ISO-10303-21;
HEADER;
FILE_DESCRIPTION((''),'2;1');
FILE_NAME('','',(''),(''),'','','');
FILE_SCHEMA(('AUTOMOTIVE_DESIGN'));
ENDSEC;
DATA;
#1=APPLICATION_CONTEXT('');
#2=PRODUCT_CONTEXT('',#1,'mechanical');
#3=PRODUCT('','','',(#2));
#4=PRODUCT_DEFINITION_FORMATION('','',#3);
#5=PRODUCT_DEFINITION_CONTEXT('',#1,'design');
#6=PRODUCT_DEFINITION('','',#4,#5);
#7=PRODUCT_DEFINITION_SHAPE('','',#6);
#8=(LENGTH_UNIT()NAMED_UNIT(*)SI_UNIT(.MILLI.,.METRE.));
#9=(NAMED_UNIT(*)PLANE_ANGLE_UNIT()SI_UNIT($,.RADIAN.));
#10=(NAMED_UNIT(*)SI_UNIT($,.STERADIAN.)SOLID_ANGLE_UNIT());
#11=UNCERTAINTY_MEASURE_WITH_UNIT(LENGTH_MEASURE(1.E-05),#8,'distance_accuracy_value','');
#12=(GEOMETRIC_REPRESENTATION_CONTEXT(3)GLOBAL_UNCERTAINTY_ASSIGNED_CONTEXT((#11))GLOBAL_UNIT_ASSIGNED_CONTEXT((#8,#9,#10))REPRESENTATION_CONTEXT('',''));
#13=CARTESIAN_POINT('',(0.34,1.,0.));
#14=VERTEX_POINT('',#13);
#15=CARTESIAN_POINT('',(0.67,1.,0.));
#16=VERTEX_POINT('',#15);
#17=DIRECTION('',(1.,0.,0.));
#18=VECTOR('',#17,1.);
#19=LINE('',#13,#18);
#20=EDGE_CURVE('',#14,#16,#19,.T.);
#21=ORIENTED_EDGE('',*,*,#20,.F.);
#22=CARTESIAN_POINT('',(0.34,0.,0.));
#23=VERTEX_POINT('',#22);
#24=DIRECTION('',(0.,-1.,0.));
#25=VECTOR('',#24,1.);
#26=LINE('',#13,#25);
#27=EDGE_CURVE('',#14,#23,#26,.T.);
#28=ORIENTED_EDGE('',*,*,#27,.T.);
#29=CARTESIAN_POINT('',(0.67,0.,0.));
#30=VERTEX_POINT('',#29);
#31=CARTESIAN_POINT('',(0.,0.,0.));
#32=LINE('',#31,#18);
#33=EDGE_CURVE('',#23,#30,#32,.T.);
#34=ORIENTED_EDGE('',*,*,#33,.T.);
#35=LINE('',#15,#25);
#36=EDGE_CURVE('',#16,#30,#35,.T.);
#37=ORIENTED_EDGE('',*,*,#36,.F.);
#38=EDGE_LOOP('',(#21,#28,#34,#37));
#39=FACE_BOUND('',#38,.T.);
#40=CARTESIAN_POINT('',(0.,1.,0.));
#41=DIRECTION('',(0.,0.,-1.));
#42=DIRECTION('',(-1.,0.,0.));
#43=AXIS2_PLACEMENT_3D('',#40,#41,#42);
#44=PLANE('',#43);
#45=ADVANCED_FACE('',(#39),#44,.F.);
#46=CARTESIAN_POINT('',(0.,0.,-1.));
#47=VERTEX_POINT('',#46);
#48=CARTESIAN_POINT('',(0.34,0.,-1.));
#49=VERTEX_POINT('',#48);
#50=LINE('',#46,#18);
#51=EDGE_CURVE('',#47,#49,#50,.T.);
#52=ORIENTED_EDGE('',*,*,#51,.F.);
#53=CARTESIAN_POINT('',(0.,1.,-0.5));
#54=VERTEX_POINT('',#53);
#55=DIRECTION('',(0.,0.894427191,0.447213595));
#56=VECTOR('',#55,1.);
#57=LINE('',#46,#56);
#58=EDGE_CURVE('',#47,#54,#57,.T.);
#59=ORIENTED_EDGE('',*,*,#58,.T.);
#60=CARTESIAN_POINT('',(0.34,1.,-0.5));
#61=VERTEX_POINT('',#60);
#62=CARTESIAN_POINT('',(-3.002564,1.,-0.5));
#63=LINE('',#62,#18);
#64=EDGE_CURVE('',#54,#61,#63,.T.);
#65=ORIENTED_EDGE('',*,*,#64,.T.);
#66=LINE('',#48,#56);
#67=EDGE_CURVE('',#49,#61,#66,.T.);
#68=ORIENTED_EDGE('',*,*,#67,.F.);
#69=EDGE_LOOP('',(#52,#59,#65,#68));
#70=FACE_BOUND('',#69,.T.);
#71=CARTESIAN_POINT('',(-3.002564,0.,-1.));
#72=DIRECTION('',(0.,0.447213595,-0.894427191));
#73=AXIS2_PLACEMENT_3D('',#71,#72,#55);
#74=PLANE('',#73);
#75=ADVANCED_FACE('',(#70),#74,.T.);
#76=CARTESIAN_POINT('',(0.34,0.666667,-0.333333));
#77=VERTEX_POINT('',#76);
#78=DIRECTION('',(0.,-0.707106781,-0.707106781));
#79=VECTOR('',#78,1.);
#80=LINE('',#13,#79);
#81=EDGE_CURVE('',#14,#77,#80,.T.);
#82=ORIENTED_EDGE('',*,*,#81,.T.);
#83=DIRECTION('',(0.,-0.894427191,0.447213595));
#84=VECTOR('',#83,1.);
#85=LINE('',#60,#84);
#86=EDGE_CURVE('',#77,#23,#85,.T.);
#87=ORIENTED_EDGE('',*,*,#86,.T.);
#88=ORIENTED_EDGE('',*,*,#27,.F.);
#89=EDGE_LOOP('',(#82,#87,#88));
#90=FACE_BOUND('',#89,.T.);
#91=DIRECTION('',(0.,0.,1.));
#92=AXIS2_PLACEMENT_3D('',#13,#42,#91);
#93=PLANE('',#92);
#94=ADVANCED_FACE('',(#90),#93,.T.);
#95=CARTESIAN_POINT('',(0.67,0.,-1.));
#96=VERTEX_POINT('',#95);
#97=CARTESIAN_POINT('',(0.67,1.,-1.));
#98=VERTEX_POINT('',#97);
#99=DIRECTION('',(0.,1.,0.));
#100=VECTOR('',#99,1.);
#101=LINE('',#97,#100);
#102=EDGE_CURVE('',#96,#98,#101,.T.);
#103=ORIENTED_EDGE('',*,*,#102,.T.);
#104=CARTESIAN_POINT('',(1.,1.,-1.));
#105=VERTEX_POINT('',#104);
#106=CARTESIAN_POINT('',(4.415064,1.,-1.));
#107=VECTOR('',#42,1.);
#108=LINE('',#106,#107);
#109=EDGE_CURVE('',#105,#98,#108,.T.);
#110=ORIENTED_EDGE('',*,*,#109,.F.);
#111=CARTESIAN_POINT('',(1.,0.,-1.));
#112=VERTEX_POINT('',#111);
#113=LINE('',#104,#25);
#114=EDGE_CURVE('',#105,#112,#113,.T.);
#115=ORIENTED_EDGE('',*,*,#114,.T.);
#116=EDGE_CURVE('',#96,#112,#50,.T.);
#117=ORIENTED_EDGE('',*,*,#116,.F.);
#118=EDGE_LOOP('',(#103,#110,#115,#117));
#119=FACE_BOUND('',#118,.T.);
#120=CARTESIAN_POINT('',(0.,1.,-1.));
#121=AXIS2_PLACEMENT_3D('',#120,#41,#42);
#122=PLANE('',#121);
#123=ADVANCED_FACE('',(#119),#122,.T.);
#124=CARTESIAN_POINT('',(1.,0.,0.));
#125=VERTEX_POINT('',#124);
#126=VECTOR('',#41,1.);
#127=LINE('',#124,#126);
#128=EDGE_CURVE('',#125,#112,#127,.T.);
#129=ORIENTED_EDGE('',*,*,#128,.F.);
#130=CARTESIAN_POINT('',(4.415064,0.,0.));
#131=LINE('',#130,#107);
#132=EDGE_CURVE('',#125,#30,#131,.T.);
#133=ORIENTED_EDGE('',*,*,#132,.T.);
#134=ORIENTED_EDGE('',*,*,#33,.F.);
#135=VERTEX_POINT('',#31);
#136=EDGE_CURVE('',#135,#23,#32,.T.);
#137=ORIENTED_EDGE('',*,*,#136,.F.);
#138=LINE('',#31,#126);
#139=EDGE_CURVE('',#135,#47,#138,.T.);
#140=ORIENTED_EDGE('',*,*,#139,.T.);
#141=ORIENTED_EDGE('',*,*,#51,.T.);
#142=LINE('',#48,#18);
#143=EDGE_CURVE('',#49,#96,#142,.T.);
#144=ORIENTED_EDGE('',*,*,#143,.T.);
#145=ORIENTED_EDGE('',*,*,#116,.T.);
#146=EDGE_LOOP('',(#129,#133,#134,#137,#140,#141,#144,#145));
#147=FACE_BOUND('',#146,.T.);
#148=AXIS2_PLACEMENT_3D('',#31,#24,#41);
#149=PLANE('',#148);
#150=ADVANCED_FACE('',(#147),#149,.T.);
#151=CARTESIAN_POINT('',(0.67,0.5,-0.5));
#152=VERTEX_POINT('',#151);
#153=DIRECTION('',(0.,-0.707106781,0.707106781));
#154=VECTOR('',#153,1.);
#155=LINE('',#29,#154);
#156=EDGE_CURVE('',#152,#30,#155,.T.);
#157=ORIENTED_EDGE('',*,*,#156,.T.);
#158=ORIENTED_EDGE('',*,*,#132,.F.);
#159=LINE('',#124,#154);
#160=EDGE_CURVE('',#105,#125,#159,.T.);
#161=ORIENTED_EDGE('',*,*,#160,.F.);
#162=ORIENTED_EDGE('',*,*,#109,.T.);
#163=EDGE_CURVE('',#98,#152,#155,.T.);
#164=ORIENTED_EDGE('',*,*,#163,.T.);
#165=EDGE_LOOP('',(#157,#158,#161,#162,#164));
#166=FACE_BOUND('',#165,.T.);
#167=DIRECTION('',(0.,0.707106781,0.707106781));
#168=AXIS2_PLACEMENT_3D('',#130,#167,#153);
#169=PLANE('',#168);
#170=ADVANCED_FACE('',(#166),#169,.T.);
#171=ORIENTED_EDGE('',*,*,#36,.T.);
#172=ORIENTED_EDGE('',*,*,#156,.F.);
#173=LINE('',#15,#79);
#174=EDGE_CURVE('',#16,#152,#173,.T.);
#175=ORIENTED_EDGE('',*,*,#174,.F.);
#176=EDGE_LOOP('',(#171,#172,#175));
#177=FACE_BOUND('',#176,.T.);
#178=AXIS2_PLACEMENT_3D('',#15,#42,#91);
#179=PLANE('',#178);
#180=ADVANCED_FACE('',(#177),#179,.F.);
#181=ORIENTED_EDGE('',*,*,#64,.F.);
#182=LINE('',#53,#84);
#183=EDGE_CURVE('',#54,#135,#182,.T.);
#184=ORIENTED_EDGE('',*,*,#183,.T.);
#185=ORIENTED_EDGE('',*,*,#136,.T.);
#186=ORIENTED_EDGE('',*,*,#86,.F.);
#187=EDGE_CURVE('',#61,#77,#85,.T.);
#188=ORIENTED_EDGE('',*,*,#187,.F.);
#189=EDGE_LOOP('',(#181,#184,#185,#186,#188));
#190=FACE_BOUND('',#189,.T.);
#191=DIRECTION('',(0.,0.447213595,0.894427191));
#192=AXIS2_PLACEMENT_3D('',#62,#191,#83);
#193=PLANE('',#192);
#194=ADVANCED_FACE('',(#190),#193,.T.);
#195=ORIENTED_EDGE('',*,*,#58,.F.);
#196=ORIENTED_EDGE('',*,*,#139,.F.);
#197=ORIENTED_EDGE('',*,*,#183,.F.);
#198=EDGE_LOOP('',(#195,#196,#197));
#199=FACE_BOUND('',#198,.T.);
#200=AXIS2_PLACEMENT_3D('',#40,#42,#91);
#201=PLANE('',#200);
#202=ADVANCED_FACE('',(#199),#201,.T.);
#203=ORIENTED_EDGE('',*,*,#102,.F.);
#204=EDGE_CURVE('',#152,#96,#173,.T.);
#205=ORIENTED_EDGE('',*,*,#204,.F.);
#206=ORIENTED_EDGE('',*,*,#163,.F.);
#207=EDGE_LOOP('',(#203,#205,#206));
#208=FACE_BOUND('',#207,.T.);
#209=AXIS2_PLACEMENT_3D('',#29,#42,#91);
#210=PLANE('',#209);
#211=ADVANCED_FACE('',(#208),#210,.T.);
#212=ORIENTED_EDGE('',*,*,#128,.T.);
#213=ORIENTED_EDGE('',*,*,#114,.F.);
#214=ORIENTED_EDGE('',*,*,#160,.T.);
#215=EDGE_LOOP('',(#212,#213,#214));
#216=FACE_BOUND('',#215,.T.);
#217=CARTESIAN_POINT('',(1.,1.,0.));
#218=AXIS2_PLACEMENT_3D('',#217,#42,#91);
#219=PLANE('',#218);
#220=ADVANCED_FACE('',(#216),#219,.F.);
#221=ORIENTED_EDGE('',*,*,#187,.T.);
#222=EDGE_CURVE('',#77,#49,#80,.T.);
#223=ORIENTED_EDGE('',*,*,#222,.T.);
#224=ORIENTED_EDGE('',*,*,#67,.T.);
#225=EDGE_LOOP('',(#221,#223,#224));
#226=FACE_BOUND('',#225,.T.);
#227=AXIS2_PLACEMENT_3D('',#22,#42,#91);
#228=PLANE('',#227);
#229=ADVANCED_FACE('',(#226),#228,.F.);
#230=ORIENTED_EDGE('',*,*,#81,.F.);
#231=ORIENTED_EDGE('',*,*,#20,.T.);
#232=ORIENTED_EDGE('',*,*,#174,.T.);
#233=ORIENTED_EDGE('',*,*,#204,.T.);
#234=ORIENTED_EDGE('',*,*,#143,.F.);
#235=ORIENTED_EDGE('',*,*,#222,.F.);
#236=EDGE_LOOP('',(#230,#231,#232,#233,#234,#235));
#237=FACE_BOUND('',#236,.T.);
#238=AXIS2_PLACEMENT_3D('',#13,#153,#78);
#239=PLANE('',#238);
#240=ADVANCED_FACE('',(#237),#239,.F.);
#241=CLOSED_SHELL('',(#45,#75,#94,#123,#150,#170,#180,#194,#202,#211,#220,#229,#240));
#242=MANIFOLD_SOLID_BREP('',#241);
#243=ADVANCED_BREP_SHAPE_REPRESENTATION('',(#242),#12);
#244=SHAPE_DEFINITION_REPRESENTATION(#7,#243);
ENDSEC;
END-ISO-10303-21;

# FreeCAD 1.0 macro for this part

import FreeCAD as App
import Part
import Sketcher
Q = App.Units.Quantity

doc = App.newDocument("Part")
params = doc.addObject("Spreadsheet::Sheet", "Params")
for row, (alias, value) in enumerate([
    ("sketch1_width", "1 mm"),
    ("pad1_length", "1 mm"),
    ("pocket1_length", "2.732051 mm"),
    ("pocket1_length2", "0.33 mm"),
    ("sketch3_width", "1 mm"),
    ("pocket2_length", "0.33 mm"),
    ("pocket3_length", "2.732051 mm"),
    ("pocket3_length2", "0.34 mm"),
], start=1):
    params.set(f"A{row}", alias)
    params.set(f"B{row}", "=" + value)
    params.setAlias(f"B{row}", alias)

body = doc.addObject("PartDesign::Body", "Body")

# Sketch on XZ plane
sketch1 = doc.addObject("Sketcher::SketchObject", "Sketch")
body.addObject(sketch1)
sketch1.AttachmentSupport = (doc.XZ_Plane, [""])
sketch1.MapMode = "FlatFace"
sketch1.addGeometry(Part.LineSegment(App.Vector(0, -1, 0), App.Vector(0, 0, 0)), False)
sketch1.addGeometry(Part.LineSegment(App.Vector(0, 0, 0), App.Vector(1, 0, 0)), False)
sketch1.addGeometry(Part.LineSegment(App.Vector(1, 0, 0), App.Vector(1, -1, 0)), False)
sketch1.addGeometry(Part.LineSegment(App.Vector(1, -1, 0), App.Vector(0, -1, 0)), False)
sketch1.addConstraint(Sketcher.Constraint("Coincident", 0, 2, 1, 1))
sketch1.addConstraint(Sketcher.Constraint("Coincident", 1, 2, 2, 1))
sketch1.addConstraint(Sketcher.Constraint("Coincident", 2, 2, 3, 1))
sketch1.addConstraint(Sketcher.Constraint("Coincident", 3, 2, 0, 1))
sketch1.addConstraint(Sketcher.Constraint("Vertical", 0))
sketch1.addConstraint(Sketcher.Constraint("Horizontal", 1))
sketch1.addConstraint(Sketcher.Constraint("Vertical", 2))
sketch1.addConstraint(Sketcher.Constraint("Horizontal", 3))
sketch1.addConstraint(Sketcher.Constraint("Coincident", 0, 2, -1, 1))
sketch1.addConstraint(Sketcher.Constraint("Equal", 3, 0))
sketch1.addConstraint(Sketcher.Constraint("DistanceX", 1, 1, 1, 2, Q("1 mm")))
sketch1.setExpression("Constraints[10]", "Params.sketch1_width")
pad1 = doc.addObject("PartDesign::Pad", "Pad")
body.addObject(pad1)
pad1.Profile = sketch1
pad1.setExpression("Length", "Params.pad1_length")
pad1.Reversed = True

# Sketch on YZ plane
sketch2 = doc.addObject("Sketcher::SketchObject", "Sketch001")
body.addObject(sketch2)
sketch2.AttachmentSupport = (doc.YZ_Plane, [""])
sketch2.MapMode = "FlatFace"
sketch2.AttachmentOffset = App.Placement(App.Vector(0, 0, 1), App.Rotation())
sketch2.addGeometry(Part.LineSegment(App.Vector(-9, 9, 0), App.Vector(10, -10, 0)), False)
sketch2.addGeometry(Part.LineSegment(App.Vector(10, -10, 0), App.Vector(28, 8, 0)), False)
sketch2.addGeometry(Part.LineSegment(App.Vector(28, 8, 0), App.Vector(9, 27, 0)), False)
sketch2.addGeometry(Part.LineSegment(App.Vector(9, 27, 0), App.Vector(-9, 9, 0)), False)
sketch2.addConstraint(Sketcher.Constraint("Coincident", 0, 2, 1, 1))
sketch2.addConstraint(Sketcher.Constraint("Coincident", 1, 2, 2, 1))
sketch2.addConstraint(Sketcher.Constraint("Coincident", 2, 2, 3, 1))
sketch2.addConstraint(Sketcher.Constraint("Coincident", 3, 2, 0, 1))
sketch2.addConstraint(Sketcher.Constraint("Perpendicular", 0, 1))
sketch2.addConstraint(Sketcher.Constraint("Perpendicular", 1, 2))
sketch2.addConstraint(Sketcher.Constraint("Perpendicular", 2, 3))
sketch2.addConstraint(Sketcher.Constraint("Angle", 0, Q("-45 deg")))
sketch2.addConstraint(Sketcher.Constraint("DistanceX", 2, 2, 0, 2, Q("1 mm")))
sketch2.addConstraint(Sketcher.Constraint("DistanceY", 0, 2, 2, 2, Q("37.284271 mm")))
sketch2.addConstraint(Sketcher.Constraint("DistanceX", -1, 1, 0, 2, Q("10.071068 mm")))
sketch2.addConstraint(Sketcher.Constraint("DistanceY", 0, 2, -1, 1, Q("10.071068 mm")))
pocket1 = doc.addObject("PartDesign::Pocket", "Pocket")
body.addObject(pocket1)
pocket1.Profile = sketch2
pocket1.Type = "TwoLengths"
pocket1.setExpression("Length", "Params.pocket1_length")
pocket1.setExpression("Length2", "Params.pocket1_length2")
pocket1.Reversed = True

# Sketch on YZ plane
sketch3 = doc.addObject("Sketcher::SketchObject", "Sketch002")
body.addObject(sketch3)
sketch3.AttachmentSupport = (doc.YZ_Plane, [""])
sketch3.MapMode = "FlatFace"
sketch3.AttachmentOffset = App.Placement(App.Vector(0, 0, 0.67), App.Rotation())
sketch3.addGeometry(Part.LineSegment(App.Vector(1, 0, 0), App.Vector(0, -1, 0)), False)
sketch3.addGeometry(Part.LineSegment(App.Vector(0, -1, 0), App.Vector(1, -1, 0)), False)
sketch3.addGeometry(Part.LineSegment(App.Vector(1, -1, 0), App.Vector(1, 0, 0)), False)
sketch3.addConstraint(Sketcher.Constraint("Coincident", 0, 2, 1, 1))
sketch3.addConstraint(Sketcher.Constraint("Coincident", 1, 2, 2, 1))
sketch3.addConstraint(Sketcher.Constraint("Coincident", 2, 2, 0, 1))
sketch3.addConstraint(Sketcher.Constraint("Horizontal", 1))
sketch3.addConstraint(Sketcher.Constraint("Vertical", 2))
sketch3.addConstraint(Sketcher.Constraint("PointOnObject", 0, 2, -2))
sketch3.addConstraint(Sketcher.Constraint("PointOnObject", 2, 2, -1))
sketch3.addConstraint(Sketcher.Constraint("Equal", 1, 2))
sketch3.addConstraint(Sketcher.Constraint("DistanceX", 1, 1, 1, 2, Q("1 mm")))
sketch3.setExpression("Constraints[8]", "Params.sketch3_width")
pocket2 = doc.addObject("PartDesign::Pocket", "Pocket001")
body.addObject(pocket2)
pocket2.Profile = sketch3
pocket2.setExpression("Length", "Params.pocket2_length")

# Sketch on YZ plane
sketch4 = doc.addObject("Sketcher::SketchObject", "Sketch003")
body.addObject(sketch4)
sketch4.AttachmentSupport = (doc.YZ_Plane, [""])
sketch4.MapMode = "FlatFace"
sketch4.addGeometry(Part.LineSegment(App.Vector(-11, -7, 0), App.Vector(1, 0, 0)), False)
sketch4.addGeometry(Part.LineSegment(App.Vector(1, 0, 0), App.Vector(-11, 6, 0)), False)
sketch4.addGeometry(Part.LineSegment(App.Vector(-11, 6, 0), App.Vector(14, 6, 0)), False)
sketch4.addGeometry(Part.LineSegment(App.Vector(14, 6, 0), App.Vector(14, -7, 0)), False)
sketch4.addGeometry(Part.LineSegment(App.Vector(14, -7, 0), App.Vector(-11, -7, 0)), False)
sketch4.addConstraint(Sketcher.Constraint("Coincident", 0, 2, 1, 1))
sketch4.addConstraint(Sketcher.Constraint("Coincident", 1, 2, 2, 1))
sketch4.addConstraint(Sketcher.Constraint("Coincident", 2, 2, 3, 1))
sketch4.addConstraint(Sketcher.Constraint("Coincident", 3, 2, 4, 1))
sketch4.addConstraint(Sketcher.Constraint("Coincident", 4, 2, 0, 1))
sketch4.addConstraint(Sketcher.Constraint("Horizontal", 2))
sketch4.addConstraint(Sketcher.Constraint("Vertical", 3))
sketch4.addConstraint(Sketcher.Constraint("Horizontal", 4))
sketch4.addConstraint(Sketcher.Constraint("Vertical", 1, 2, 4, 2))
sketch4.addConstraint(Sketcher.Constraint("Equal", 0, 1))
sketch4.addConstraint(Sketcher.Constraint("DistanceX", -1, 1, 0, 2, Q("1 mm")))
sketch4.addConstraint(Sketcher.Constraint("DistanceY", 0, 2, -1, 1, Q("0.5 mm")))
sketch4.addConstraint(Sketcher.Constraint("Distance", 0, Q("13.946461 mm")))
sketch4.addConstraint(Sketcher.Constraint("DistanceX", 2, 1, 2, 2, Q("25.656854 mm")))
sketch4.addConstraint(Sketcher.Constraint("DistanceY", 3, 2, 3, 1, Q("12.474094 mm")))
pocket3 = doc.addObject("PartDesign::Pocket", "Pocket002")
body.addObject(pocket3)
pocket3.Profile = sketch4
pocket3.Type = "TwoLengths"
pocket3.setExpression("Length", "Params.pocket3_length")
pocket3.setExpression("Length2", "Params.pocket3_length2")

doc.recompute()
